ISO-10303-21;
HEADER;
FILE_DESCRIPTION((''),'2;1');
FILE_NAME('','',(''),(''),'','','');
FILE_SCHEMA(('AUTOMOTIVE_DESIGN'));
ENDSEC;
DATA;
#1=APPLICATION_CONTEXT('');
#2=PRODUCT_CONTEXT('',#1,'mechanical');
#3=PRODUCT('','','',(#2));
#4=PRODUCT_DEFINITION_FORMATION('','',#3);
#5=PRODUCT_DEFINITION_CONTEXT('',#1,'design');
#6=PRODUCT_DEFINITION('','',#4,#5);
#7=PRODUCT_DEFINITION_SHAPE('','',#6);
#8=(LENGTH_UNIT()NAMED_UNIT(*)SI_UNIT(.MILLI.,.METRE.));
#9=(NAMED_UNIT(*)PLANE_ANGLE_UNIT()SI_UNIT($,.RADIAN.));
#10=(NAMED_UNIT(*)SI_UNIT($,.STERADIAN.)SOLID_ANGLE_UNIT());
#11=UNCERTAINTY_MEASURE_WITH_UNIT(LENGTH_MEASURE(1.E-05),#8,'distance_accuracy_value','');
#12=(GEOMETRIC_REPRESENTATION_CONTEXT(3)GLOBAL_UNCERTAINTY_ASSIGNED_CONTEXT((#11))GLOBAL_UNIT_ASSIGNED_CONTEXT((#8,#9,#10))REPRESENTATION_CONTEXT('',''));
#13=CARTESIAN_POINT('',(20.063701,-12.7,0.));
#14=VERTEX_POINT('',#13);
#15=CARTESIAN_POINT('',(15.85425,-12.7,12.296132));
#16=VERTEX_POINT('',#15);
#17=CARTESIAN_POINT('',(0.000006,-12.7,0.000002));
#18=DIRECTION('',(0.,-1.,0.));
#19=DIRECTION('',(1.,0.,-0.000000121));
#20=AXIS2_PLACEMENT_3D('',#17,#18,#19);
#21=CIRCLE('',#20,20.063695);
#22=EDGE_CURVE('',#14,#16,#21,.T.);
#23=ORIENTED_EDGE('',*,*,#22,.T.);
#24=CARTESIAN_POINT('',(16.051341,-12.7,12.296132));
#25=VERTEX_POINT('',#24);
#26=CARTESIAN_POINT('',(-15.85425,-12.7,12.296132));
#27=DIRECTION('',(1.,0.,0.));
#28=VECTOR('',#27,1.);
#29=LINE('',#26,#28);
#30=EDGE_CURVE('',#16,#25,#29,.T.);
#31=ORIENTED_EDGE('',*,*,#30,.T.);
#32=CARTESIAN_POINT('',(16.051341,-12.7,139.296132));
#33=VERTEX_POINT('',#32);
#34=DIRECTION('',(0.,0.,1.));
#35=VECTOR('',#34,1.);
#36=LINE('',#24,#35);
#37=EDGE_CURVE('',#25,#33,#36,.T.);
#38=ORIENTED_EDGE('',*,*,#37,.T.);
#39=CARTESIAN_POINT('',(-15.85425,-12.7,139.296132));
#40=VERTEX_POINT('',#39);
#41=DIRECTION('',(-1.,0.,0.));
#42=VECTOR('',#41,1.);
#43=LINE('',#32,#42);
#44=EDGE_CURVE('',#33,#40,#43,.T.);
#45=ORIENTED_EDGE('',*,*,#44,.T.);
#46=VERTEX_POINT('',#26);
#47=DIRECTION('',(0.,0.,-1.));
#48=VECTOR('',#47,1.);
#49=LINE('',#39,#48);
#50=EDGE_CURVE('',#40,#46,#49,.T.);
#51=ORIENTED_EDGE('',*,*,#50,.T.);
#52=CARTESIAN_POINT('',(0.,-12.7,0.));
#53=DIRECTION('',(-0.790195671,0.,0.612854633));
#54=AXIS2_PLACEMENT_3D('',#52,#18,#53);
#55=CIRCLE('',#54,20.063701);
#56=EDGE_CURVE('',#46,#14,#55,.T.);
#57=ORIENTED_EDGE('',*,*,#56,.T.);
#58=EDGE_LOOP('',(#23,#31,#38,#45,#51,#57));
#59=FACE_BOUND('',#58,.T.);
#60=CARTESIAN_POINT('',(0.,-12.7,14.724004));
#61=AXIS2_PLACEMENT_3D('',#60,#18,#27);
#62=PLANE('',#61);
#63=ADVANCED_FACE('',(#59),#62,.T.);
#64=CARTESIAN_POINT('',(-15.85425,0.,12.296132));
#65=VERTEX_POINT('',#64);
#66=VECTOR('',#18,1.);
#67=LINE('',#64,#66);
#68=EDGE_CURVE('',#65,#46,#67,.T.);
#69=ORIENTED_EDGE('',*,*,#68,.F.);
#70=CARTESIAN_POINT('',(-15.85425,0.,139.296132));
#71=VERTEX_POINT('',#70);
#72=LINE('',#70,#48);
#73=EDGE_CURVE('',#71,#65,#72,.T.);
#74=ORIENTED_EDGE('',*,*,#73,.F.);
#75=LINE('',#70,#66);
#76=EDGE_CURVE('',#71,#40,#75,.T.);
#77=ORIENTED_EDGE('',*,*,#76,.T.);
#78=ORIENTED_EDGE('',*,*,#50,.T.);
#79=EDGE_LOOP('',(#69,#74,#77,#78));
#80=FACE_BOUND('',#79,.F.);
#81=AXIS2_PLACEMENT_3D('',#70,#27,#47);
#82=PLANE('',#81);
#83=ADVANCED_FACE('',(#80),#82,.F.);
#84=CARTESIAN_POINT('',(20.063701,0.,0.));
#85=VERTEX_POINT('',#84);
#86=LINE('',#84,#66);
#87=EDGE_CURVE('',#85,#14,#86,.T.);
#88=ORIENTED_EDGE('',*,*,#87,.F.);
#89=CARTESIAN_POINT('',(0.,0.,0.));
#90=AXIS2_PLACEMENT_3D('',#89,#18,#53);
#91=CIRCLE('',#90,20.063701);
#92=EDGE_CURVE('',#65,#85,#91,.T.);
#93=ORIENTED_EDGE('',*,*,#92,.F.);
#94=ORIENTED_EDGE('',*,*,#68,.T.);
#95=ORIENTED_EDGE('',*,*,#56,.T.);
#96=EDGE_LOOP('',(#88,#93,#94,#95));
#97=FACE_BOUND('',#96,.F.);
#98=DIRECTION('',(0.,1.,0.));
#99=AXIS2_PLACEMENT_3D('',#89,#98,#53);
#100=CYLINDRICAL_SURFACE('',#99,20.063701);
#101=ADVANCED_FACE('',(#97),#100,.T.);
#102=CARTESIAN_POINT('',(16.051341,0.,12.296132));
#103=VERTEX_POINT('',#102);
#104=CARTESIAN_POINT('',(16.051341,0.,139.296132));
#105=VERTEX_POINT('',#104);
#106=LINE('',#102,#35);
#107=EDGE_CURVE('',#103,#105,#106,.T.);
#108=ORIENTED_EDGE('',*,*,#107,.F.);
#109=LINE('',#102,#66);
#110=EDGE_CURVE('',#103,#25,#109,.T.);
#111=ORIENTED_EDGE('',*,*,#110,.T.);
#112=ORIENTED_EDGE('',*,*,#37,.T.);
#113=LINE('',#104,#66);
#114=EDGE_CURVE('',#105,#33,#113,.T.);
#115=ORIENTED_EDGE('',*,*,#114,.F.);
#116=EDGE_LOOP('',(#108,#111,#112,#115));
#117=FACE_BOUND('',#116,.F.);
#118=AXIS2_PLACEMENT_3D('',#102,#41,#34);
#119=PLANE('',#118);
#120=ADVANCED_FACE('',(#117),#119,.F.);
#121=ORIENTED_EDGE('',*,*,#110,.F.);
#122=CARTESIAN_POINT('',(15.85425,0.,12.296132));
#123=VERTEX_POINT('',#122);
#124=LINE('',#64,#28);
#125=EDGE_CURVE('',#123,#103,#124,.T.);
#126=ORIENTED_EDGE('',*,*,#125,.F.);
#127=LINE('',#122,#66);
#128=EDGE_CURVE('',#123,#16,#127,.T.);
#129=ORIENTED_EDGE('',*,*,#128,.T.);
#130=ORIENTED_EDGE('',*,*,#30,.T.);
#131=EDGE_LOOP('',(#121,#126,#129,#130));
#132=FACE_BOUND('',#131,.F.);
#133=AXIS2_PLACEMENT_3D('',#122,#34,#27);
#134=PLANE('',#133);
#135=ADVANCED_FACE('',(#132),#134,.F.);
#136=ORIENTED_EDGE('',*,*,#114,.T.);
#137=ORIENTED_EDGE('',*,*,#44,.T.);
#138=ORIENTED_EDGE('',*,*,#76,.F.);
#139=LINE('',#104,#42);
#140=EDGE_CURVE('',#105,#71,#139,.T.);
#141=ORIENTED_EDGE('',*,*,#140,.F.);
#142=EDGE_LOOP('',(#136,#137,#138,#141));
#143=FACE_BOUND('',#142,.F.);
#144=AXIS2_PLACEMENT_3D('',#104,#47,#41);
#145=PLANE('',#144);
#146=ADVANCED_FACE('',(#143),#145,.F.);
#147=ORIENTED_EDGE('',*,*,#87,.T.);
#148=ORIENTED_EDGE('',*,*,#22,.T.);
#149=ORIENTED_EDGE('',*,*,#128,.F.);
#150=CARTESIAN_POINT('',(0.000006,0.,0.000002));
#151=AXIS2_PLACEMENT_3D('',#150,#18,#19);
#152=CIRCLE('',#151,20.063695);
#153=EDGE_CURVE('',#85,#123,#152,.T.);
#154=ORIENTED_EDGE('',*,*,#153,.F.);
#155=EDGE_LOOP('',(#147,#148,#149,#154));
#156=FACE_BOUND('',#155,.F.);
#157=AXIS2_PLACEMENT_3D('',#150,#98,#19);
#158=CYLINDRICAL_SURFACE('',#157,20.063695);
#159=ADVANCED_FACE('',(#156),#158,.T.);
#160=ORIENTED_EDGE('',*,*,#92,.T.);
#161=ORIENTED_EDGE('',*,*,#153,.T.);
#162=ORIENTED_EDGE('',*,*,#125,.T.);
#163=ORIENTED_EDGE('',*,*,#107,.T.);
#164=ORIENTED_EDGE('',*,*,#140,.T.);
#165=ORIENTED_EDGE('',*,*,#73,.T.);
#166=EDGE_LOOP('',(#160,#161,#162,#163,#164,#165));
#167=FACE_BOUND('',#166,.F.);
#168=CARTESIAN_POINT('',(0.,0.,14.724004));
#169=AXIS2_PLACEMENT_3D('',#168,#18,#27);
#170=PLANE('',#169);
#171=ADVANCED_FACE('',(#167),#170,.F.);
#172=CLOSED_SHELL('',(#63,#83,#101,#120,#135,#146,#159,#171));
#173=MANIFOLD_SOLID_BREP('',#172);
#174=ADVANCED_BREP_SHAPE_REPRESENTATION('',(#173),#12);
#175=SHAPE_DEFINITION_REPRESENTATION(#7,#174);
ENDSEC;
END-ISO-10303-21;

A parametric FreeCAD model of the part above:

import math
import FreeCAD as App
import Part
import Sketcher
from FreeCAD import Vector
Q = App.Units.Quantity

doc = App.newDocument("Part")
body = doc.addObject("PartDesign::Body", "Body")

# Sketch on XZ plane
sketch1 = doc.addObject("Sketcher::SketchObject", "Sketch")
body.addObject(sketch1)
sketch1.AttachmentSupport = (doc.XZ_Plane, [""])
sketch1.MapMode = "FlatFace"
sketch1.addGeometry([
    Part.LineSegment(Vector(15.85, 12.3, 0), Vector(16.05, 12.3, 0)),  # 0
    Part.LineSegment(Vector(16.05, 12.3, 0), Vector(16.05, 139.3, 0)),  # 1
    Part.LineSegment(Vector(16.05, 139.3, 0), Vector(-15.85, 139.3, 0)),  # 2
    Part.LineSegment(Vector(-15.85, 139.3, 0), Vector(-15.85, 12.3, 0)),  # 3
    Part.ArcOfCircle(Part.Circle(Vector(0, 0, 0), Vector(0, 0, 1), 20.06), math.radians(142), math.radians(360)),  # 4
    Part.ArcOfCircle(Part.Circle(Vector(0, 0, 0), Vector(0, 0, 1), 20.06), math.radians(0), math.radians(38)),  # 5
], False)
sketch1.addConstraint([
    Sketcher.Constraint("Coincident", 0, 2, 1, 1),
    Sketcher.Constraint("Coincident", 1, 2, 2, 1),
    Sketcher.Constraint("Coincident", 2, 2, 3, 1),
    Sketcher.Constraint("Coincident", 3, 2, 4, 1),
    Sketcher.Constraint("Tangent", 4, 2, 5, 1),
    Sketcher.Constraint("Coincident", 5, 2, 0, 1),
    Sketcher.Constraint("Horizontal", 0),
    Sketcher.Constraint("Vertical", 1),
    Sketcher.Constraint("Horizontal", 2),
    Sketcher.Constraint("Vertical", 3),
    Sketcher.Constraint("Coincident", 4, 3, -1, 1),
    Sketcher.Constraint("Symmetric", 3, 2, 5, 2, -2),
    Sketcher.Constraint("PointOnObject", 4, 2, -1),
    Sketcher.Constraint("DistanceY", 1, 1, 1, 2, Q("5 in")),
    Sketcher.Constraint("Radius", 4, 20.063701),
    Sketcher.Constraint("DistanceX", 0, 1, 0, 2, 0.197091),
    Sketcher.Constraint("DistanceX", 2, 2, 2, 1, 31.905591),
])
pad1 = doc.addObject("PartDesign::Pad", "Pad")
body.addObject(pad1)
pad1.Profile = sketch1
pad1.Length = Q("0.5 in")

doc.recompute()
